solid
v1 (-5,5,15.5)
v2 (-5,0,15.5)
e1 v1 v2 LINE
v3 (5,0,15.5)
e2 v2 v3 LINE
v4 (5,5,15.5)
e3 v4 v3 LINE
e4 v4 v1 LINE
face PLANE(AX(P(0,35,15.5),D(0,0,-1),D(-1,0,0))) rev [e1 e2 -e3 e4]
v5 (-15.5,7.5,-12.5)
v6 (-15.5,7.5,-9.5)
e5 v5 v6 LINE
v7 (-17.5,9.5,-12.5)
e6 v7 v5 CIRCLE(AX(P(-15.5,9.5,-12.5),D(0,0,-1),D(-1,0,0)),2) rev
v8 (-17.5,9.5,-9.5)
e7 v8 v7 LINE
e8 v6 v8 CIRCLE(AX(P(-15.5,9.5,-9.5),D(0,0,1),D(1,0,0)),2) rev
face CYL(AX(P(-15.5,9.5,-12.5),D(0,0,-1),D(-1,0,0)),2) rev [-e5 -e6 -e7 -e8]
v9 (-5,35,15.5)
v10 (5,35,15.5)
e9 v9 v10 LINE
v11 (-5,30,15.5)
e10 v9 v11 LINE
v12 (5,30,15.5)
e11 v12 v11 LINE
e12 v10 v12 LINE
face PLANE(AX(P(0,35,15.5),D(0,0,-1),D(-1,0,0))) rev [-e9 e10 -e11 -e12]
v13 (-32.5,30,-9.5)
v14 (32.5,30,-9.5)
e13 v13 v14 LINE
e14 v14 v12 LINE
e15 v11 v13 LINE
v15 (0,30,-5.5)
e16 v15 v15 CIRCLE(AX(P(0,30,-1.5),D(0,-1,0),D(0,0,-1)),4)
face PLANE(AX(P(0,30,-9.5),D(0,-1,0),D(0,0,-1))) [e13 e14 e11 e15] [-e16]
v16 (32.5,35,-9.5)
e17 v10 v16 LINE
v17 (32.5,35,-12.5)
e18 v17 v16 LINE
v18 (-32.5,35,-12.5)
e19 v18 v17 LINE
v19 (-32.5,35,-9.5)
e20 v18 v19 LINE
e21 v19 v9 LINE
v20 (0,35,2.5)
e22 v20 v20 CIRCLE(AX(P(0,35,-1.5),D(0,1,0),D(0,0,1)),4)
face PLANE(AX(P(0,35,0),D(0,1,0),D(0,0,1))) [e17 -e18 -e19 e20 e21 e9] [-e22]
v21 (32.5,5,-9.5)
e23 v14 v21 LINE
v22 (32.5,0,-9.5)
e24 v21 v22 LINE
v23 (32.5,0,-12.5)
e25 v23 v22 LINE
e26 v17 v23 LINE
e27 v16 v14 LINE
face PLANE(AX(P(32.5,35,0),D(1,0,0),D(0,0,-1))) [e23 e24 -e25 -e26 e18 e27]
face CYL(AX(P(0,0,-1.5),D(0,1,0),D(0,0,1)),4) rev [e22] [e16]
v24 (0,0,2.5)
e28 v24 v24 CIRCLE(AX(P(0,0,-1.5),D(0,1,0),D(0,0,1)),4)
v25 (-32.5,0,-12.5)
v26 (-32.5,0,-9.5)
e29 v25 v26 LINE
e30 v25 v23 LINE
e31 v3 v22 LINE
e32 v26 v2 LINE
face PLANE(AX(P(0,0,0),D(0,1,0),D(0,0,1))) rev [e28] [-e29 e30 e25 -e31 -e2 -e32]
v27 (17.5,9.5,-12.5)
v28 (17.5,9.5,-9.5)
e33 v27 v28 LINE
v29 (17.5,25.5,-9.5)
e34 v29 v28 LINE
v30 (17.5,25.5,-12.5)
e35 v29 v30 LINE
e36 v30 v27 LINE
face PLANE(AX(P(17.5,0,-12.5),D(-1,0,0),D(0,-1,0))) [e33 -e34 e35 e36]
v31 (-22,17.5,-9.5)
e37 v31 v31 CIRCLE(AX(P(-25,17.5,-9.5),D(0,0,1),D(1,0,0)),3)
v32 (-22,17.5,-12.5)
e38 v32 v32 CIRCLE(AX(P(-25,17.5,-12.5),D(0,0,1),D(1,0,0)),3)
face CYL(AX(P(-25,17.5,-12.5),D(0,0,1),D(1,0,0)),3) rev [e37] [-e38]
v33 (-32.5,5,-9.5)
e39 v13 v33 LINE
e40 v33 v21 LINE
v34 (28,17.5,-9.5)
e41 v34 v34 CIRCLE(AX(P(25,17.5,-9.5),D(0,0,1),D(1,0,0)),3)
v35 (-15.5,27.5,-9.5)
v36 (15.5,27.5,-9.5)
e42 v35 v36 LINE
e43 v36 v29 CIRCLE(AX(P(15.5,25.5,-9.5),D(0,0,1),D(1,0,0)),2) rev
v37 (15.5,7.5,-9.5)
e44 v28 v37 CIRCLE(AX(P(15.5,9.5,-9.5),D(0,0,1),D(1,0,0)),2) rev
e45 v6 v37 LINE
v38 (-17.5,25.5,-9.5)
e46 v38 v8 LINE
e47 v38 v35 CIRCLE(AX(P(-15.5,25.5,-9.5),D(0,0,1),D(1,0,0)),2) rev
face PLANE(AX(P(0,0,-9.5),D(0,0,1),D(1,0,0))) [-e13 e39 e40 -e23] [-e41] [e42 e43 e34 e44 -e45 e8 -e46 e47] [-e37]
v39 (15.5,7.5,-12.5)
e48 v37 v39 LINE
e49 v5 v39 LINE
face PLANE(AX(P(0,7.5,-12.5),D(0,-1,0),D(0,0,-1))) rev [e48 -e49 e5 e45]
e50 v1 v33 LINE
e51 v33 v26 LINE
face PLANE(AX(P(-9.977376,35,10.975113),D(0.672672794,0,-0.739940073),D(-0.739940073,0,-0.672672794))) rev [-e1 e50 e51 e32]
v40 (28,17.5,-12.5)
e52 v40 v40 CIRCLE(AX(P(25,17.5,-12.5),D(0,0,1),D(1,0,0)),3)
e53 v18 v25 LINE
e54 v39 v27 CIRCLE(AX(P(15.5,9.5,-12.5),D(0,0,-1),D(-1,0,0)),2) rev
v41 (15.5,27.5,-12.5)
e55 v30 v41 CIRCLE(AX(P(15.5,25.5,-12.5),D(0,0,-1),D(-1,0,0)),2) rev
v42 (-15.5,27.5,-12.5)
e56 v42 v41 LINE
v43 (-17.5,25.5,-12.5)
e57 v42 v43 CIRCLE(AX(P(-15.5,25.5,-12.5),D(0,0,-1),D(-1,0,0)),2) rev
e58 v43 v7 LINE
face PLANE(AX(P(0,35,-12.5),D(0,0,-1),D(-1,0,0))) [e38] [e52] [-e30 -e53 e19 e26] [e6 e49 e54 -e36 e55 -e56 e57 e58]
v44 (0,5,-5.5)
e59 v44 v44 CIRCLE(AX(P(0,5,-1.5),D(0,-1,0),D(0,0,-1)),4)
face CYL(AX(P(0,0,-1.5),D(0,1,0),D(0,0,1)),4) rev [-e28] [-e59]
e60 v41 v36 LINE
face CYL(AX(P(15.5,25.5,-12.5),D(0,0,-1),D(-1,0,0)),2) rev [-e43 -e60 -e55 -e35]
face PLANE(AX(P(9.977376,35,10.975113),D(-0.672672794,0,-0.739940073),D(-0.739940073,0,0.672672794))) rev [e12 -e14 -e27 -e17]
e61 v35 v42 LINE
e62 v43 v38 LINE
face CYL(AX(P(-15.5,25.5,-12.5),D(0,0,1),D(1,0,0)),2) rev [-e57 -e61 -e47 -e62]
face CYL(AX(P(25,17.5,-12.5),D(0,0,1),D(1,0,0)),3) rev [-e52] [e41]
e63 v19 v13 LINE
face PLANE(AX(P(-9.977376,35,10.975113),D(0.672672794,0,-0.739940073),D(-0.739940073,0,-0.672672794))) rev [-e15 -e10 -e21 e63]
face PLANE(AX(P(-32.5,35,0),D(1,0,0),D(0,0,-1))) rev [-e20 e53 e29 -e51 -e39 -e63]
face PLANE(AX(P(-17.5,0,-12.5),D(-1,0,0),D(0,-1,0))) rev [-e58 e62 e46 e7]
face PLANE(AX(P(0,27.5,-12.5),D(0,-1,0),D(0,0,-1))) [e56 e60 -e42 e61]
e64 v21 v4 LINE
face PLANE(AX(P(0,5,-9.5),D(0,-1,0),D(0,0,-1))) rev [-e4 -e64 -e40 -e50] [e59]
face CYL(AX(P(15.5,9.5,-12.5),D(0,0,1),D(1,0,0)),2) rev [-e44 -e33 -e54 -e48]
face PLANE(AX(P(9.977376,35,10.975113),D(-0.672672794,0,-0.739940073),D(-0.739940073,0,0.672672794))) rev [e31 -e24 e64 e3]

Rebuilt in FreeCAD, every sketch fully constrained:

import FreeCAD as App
import Part
import Sketcher

V = App.Vector
Q = App.Units.Quantity


def edges_at(feature, points):
    """Names of the edges that pass closest to the given points."""
    edges = feature.Shape.Edges
    near = lambda p: min(range(len(edges)), key=lambda i: edges[i].distToShape(Part.Vertex(*p))[0])
    return sorted({f"Edge{near(p) + 1}" for p in points})


def add_polygon(sketch, points):
    """Adds a closed chain of lines whose ends are joined by coincident constraints."""
    first, n = sketch.GeometryCount, len(points)
    for a, b in zip(points, points[1:] + points[:1]):
        sketch.addGeometry(Part.LineSegment(App.Vector(*a, 0), App.Vector(*b, 0)), False)
    for i in range(n):
        sketch.addConstraint(Sketcher.Constraint("Coincident", first + i, 2, first + (i + 1) % n, 1))

doc = App.newDocument("Part")
body = doc.addObject("PartDesign::Body", "Body")

# Sketch on XZ plane
sketch1 = doc.addObject("Sketcher::SketchObject", "Sketch")
body.addObject(sketch1)
sketch1.AttachmentSupport = (doc.XZ_Plane, [""])
sketch1.MapMode = "FlatFace"
add_polygon(sketch1, [(32.5, -12.5), (-32.5, -12.5), (-32.5, -9.5), (-5, 15.5), (5, 15.5), (32.5, -9.5)])  # lines 0-5
sketch1.addConstraint([
    Sketcher.Constraint("Horizontal", 0),
    Sketcher.Constraint("Vertical", 1),
    Sketcher.Constraint("Horizontal", 3),
    Sketcher.Constraint("Vertical", 5),
    Sketcher.Constraint("Symmetric", 1, 2, 4, 2, -2),
    Sketcher.Constraint("Equal", 2, 4),
    Sketcher.Constraint("DistanceX", 0, 2, 0, 1, Q("65 mm")),
    Sketcher.Constraint("DistanceX", 3, 1, 3, 2, Q("10 mm")),
    Sketcher.Constraint("DistanceY", 1, 1, 1, 2, Q("3 mm")),
    Sketcher.Constraint("DistanceY", 1, 2, 2, 2, Q("25 mm")),
    Sketcher.Constraint("DistanceY", 0, 2, -1, 1, Q("12.5 mm")),
])
pad1 = doc.addObject("PartDesign::Pad", "Pad")
body.addObject(pad1)
pad1.Profile = sketch1
pad1.Length = 35
pad1.Reversed = True

# Sketch on XY plane
sketch2 = doc.addObject("Sketcher::SketchObject", "Sketch001")
body.addObject(sketch2)
sketch2.AttachmentSupport = (doc.XY_Plane, [""])
sketch2.MapMode = "FlatFace"
add_polygon(sketch2, [(32, 5), (32, 30), (-32, 30), (-32, 5)])  # lines 0-3
sketch2.addConstraint([
    Sketcher.Constraint("Vertical", 0),
    Sketcher.Constraint("Horizontal", 1),
    Sketcher.Constraint("Vertical", 2),
    Sketcher.Constraint("Horizontal", 3),
    Sketcher.Constraint("DistanceX", 1, 2, 1, 1, Q("65 mm")),
    Sketcher.Constraint("DistanceY", 0, 1, 0, 2, Q("25 mm")),
    Sketcher.Constraint("DistanceY", -1, 1, 0, 2, Q("30 mm")),
    Sketcher.Constraint("DistanceX", -1, 1, 0, 2, Q("32.5 mm")),
])
pocket1 = doc.addObject("PartDesign::Pocket", "Pocket")
body.addObject(pocket1)
pocket1.Profile = sketch2
pocket1.Type = "TwoLengths"
pocket1.Length = 15.5
pocket1.Length2 = 9.5
pocket1.Reversed = True

# Sketch on XY plane
sketch3 = doc.addObject("Sketcher::SketchObject", "Sketch002")
body.addObject(sketch3)
sketch3.AttachmentSupport = (doc.XY_Plane, [""])
sketch3.MapMode = "FlatFace"
sketch3.addGeometry(Part.Circle(V(-25, 17.5, 0), V(0, 0, 1), 3), False)  # 0
sketch3.addGeometry(Part.Circle(V(25, 17.5, 0), V(0, 0, 1), 3), False)  # 1
add_polygon(sketch3, [(-17.5, 27.5), (-17.5, 7.5), (17.5, 7.5), (17.5, 27.5)])  # lines 2-5
sketch3.addConstraint([
    Sketcher.Constraint("Vertical", 2),
    Sketcher.Constraint("Horizontal", 3),
    Sketcher.Constraint("Vertical", 4),
    Sketcher.Constraint("Horizontal", 5),
    Sketcher.Constraint("Equal", 0, 1),
    Sketcher.Constraint("Symmetric", 0, 3, 1, 3, -2),
    Sketcher.Constraint("Diameter", 0, Q("6 mm")),
    Sketcher.Constraint("DistanceX", 3, 1, 3, 2, Q("35 mm")),
    Sketcher.Constraint("DistanceY", 2, 2, 2, 1, Q("20 mm")),
    Sketcher.Constraint("DistanceX", 0, 3, -1, 1, Q("25 mm")),
    Sketcher.Constraint("DistanceY", 2, 2, 0, 3, Q("10 mm")),
    Sketcher.Constraint("DistanceY", -1, 1, 0, 3, Q("17.5 mm")),
    Sketcher.Constraint("DistanceX", 2, 2, -1, 1, Q("17.5 mm")),
])
pocket2 = doc.addObject("PartDesign::Pocket", "Pocket001")
body.addObject(pocket2)
pocket2.Profile = sketch3
pocket2.Type = "ThroughAll"
pocket2.Midplane = True
doc.recompute()

fillet = doc.addObject("PartDesign::Fillet", "Fillet")
body.addObject(fillet)
fillet.Base = (pocket2, edges_at(pocket2, [
    (17.5, 27.5, -11),
    (17.5, 7.5, -11),
    (-17.5, 7.5, -11),
    (-17.5, 27.5, -11),
]))
fillet.Radius = 2

# Sketch on XZ plane
sketch4 = doc.addObject("Sketcher::SketchObject", "Sketch003")
body.addObject(sketch4)
sketch4.AttachmentSupport = (doc.XZ_Plane, [""])
sketch4.MapMode = "FlatFace"
sketch4.AttachmentOffset = App.Placement(V(0, 0, -35), App.Rotation())
sketch4.addGeometry(Part.Circle(V(0, -1.5, 0), V(0, 0, 1), 4), False)
sketch4.addConstraint([
    Sketcher.Constraint("PointOnObject", 0, 3, -2),
    Sketcher.Constraint("Diameter", 0, Q("8 mm")),
    Sketcher.Constraint("DistanceY", 0, 3, -1, 1, Q("1.5 mm")),
])
pocket3 = doc.addObject("PartDesign::Pocket", "Pocket002")
body.addObject(pocket3)
pocket3.Profile = sketch4
pocket3.Type = "ThroughAll"
pocket3.Midplane = True

doc.recompute()
